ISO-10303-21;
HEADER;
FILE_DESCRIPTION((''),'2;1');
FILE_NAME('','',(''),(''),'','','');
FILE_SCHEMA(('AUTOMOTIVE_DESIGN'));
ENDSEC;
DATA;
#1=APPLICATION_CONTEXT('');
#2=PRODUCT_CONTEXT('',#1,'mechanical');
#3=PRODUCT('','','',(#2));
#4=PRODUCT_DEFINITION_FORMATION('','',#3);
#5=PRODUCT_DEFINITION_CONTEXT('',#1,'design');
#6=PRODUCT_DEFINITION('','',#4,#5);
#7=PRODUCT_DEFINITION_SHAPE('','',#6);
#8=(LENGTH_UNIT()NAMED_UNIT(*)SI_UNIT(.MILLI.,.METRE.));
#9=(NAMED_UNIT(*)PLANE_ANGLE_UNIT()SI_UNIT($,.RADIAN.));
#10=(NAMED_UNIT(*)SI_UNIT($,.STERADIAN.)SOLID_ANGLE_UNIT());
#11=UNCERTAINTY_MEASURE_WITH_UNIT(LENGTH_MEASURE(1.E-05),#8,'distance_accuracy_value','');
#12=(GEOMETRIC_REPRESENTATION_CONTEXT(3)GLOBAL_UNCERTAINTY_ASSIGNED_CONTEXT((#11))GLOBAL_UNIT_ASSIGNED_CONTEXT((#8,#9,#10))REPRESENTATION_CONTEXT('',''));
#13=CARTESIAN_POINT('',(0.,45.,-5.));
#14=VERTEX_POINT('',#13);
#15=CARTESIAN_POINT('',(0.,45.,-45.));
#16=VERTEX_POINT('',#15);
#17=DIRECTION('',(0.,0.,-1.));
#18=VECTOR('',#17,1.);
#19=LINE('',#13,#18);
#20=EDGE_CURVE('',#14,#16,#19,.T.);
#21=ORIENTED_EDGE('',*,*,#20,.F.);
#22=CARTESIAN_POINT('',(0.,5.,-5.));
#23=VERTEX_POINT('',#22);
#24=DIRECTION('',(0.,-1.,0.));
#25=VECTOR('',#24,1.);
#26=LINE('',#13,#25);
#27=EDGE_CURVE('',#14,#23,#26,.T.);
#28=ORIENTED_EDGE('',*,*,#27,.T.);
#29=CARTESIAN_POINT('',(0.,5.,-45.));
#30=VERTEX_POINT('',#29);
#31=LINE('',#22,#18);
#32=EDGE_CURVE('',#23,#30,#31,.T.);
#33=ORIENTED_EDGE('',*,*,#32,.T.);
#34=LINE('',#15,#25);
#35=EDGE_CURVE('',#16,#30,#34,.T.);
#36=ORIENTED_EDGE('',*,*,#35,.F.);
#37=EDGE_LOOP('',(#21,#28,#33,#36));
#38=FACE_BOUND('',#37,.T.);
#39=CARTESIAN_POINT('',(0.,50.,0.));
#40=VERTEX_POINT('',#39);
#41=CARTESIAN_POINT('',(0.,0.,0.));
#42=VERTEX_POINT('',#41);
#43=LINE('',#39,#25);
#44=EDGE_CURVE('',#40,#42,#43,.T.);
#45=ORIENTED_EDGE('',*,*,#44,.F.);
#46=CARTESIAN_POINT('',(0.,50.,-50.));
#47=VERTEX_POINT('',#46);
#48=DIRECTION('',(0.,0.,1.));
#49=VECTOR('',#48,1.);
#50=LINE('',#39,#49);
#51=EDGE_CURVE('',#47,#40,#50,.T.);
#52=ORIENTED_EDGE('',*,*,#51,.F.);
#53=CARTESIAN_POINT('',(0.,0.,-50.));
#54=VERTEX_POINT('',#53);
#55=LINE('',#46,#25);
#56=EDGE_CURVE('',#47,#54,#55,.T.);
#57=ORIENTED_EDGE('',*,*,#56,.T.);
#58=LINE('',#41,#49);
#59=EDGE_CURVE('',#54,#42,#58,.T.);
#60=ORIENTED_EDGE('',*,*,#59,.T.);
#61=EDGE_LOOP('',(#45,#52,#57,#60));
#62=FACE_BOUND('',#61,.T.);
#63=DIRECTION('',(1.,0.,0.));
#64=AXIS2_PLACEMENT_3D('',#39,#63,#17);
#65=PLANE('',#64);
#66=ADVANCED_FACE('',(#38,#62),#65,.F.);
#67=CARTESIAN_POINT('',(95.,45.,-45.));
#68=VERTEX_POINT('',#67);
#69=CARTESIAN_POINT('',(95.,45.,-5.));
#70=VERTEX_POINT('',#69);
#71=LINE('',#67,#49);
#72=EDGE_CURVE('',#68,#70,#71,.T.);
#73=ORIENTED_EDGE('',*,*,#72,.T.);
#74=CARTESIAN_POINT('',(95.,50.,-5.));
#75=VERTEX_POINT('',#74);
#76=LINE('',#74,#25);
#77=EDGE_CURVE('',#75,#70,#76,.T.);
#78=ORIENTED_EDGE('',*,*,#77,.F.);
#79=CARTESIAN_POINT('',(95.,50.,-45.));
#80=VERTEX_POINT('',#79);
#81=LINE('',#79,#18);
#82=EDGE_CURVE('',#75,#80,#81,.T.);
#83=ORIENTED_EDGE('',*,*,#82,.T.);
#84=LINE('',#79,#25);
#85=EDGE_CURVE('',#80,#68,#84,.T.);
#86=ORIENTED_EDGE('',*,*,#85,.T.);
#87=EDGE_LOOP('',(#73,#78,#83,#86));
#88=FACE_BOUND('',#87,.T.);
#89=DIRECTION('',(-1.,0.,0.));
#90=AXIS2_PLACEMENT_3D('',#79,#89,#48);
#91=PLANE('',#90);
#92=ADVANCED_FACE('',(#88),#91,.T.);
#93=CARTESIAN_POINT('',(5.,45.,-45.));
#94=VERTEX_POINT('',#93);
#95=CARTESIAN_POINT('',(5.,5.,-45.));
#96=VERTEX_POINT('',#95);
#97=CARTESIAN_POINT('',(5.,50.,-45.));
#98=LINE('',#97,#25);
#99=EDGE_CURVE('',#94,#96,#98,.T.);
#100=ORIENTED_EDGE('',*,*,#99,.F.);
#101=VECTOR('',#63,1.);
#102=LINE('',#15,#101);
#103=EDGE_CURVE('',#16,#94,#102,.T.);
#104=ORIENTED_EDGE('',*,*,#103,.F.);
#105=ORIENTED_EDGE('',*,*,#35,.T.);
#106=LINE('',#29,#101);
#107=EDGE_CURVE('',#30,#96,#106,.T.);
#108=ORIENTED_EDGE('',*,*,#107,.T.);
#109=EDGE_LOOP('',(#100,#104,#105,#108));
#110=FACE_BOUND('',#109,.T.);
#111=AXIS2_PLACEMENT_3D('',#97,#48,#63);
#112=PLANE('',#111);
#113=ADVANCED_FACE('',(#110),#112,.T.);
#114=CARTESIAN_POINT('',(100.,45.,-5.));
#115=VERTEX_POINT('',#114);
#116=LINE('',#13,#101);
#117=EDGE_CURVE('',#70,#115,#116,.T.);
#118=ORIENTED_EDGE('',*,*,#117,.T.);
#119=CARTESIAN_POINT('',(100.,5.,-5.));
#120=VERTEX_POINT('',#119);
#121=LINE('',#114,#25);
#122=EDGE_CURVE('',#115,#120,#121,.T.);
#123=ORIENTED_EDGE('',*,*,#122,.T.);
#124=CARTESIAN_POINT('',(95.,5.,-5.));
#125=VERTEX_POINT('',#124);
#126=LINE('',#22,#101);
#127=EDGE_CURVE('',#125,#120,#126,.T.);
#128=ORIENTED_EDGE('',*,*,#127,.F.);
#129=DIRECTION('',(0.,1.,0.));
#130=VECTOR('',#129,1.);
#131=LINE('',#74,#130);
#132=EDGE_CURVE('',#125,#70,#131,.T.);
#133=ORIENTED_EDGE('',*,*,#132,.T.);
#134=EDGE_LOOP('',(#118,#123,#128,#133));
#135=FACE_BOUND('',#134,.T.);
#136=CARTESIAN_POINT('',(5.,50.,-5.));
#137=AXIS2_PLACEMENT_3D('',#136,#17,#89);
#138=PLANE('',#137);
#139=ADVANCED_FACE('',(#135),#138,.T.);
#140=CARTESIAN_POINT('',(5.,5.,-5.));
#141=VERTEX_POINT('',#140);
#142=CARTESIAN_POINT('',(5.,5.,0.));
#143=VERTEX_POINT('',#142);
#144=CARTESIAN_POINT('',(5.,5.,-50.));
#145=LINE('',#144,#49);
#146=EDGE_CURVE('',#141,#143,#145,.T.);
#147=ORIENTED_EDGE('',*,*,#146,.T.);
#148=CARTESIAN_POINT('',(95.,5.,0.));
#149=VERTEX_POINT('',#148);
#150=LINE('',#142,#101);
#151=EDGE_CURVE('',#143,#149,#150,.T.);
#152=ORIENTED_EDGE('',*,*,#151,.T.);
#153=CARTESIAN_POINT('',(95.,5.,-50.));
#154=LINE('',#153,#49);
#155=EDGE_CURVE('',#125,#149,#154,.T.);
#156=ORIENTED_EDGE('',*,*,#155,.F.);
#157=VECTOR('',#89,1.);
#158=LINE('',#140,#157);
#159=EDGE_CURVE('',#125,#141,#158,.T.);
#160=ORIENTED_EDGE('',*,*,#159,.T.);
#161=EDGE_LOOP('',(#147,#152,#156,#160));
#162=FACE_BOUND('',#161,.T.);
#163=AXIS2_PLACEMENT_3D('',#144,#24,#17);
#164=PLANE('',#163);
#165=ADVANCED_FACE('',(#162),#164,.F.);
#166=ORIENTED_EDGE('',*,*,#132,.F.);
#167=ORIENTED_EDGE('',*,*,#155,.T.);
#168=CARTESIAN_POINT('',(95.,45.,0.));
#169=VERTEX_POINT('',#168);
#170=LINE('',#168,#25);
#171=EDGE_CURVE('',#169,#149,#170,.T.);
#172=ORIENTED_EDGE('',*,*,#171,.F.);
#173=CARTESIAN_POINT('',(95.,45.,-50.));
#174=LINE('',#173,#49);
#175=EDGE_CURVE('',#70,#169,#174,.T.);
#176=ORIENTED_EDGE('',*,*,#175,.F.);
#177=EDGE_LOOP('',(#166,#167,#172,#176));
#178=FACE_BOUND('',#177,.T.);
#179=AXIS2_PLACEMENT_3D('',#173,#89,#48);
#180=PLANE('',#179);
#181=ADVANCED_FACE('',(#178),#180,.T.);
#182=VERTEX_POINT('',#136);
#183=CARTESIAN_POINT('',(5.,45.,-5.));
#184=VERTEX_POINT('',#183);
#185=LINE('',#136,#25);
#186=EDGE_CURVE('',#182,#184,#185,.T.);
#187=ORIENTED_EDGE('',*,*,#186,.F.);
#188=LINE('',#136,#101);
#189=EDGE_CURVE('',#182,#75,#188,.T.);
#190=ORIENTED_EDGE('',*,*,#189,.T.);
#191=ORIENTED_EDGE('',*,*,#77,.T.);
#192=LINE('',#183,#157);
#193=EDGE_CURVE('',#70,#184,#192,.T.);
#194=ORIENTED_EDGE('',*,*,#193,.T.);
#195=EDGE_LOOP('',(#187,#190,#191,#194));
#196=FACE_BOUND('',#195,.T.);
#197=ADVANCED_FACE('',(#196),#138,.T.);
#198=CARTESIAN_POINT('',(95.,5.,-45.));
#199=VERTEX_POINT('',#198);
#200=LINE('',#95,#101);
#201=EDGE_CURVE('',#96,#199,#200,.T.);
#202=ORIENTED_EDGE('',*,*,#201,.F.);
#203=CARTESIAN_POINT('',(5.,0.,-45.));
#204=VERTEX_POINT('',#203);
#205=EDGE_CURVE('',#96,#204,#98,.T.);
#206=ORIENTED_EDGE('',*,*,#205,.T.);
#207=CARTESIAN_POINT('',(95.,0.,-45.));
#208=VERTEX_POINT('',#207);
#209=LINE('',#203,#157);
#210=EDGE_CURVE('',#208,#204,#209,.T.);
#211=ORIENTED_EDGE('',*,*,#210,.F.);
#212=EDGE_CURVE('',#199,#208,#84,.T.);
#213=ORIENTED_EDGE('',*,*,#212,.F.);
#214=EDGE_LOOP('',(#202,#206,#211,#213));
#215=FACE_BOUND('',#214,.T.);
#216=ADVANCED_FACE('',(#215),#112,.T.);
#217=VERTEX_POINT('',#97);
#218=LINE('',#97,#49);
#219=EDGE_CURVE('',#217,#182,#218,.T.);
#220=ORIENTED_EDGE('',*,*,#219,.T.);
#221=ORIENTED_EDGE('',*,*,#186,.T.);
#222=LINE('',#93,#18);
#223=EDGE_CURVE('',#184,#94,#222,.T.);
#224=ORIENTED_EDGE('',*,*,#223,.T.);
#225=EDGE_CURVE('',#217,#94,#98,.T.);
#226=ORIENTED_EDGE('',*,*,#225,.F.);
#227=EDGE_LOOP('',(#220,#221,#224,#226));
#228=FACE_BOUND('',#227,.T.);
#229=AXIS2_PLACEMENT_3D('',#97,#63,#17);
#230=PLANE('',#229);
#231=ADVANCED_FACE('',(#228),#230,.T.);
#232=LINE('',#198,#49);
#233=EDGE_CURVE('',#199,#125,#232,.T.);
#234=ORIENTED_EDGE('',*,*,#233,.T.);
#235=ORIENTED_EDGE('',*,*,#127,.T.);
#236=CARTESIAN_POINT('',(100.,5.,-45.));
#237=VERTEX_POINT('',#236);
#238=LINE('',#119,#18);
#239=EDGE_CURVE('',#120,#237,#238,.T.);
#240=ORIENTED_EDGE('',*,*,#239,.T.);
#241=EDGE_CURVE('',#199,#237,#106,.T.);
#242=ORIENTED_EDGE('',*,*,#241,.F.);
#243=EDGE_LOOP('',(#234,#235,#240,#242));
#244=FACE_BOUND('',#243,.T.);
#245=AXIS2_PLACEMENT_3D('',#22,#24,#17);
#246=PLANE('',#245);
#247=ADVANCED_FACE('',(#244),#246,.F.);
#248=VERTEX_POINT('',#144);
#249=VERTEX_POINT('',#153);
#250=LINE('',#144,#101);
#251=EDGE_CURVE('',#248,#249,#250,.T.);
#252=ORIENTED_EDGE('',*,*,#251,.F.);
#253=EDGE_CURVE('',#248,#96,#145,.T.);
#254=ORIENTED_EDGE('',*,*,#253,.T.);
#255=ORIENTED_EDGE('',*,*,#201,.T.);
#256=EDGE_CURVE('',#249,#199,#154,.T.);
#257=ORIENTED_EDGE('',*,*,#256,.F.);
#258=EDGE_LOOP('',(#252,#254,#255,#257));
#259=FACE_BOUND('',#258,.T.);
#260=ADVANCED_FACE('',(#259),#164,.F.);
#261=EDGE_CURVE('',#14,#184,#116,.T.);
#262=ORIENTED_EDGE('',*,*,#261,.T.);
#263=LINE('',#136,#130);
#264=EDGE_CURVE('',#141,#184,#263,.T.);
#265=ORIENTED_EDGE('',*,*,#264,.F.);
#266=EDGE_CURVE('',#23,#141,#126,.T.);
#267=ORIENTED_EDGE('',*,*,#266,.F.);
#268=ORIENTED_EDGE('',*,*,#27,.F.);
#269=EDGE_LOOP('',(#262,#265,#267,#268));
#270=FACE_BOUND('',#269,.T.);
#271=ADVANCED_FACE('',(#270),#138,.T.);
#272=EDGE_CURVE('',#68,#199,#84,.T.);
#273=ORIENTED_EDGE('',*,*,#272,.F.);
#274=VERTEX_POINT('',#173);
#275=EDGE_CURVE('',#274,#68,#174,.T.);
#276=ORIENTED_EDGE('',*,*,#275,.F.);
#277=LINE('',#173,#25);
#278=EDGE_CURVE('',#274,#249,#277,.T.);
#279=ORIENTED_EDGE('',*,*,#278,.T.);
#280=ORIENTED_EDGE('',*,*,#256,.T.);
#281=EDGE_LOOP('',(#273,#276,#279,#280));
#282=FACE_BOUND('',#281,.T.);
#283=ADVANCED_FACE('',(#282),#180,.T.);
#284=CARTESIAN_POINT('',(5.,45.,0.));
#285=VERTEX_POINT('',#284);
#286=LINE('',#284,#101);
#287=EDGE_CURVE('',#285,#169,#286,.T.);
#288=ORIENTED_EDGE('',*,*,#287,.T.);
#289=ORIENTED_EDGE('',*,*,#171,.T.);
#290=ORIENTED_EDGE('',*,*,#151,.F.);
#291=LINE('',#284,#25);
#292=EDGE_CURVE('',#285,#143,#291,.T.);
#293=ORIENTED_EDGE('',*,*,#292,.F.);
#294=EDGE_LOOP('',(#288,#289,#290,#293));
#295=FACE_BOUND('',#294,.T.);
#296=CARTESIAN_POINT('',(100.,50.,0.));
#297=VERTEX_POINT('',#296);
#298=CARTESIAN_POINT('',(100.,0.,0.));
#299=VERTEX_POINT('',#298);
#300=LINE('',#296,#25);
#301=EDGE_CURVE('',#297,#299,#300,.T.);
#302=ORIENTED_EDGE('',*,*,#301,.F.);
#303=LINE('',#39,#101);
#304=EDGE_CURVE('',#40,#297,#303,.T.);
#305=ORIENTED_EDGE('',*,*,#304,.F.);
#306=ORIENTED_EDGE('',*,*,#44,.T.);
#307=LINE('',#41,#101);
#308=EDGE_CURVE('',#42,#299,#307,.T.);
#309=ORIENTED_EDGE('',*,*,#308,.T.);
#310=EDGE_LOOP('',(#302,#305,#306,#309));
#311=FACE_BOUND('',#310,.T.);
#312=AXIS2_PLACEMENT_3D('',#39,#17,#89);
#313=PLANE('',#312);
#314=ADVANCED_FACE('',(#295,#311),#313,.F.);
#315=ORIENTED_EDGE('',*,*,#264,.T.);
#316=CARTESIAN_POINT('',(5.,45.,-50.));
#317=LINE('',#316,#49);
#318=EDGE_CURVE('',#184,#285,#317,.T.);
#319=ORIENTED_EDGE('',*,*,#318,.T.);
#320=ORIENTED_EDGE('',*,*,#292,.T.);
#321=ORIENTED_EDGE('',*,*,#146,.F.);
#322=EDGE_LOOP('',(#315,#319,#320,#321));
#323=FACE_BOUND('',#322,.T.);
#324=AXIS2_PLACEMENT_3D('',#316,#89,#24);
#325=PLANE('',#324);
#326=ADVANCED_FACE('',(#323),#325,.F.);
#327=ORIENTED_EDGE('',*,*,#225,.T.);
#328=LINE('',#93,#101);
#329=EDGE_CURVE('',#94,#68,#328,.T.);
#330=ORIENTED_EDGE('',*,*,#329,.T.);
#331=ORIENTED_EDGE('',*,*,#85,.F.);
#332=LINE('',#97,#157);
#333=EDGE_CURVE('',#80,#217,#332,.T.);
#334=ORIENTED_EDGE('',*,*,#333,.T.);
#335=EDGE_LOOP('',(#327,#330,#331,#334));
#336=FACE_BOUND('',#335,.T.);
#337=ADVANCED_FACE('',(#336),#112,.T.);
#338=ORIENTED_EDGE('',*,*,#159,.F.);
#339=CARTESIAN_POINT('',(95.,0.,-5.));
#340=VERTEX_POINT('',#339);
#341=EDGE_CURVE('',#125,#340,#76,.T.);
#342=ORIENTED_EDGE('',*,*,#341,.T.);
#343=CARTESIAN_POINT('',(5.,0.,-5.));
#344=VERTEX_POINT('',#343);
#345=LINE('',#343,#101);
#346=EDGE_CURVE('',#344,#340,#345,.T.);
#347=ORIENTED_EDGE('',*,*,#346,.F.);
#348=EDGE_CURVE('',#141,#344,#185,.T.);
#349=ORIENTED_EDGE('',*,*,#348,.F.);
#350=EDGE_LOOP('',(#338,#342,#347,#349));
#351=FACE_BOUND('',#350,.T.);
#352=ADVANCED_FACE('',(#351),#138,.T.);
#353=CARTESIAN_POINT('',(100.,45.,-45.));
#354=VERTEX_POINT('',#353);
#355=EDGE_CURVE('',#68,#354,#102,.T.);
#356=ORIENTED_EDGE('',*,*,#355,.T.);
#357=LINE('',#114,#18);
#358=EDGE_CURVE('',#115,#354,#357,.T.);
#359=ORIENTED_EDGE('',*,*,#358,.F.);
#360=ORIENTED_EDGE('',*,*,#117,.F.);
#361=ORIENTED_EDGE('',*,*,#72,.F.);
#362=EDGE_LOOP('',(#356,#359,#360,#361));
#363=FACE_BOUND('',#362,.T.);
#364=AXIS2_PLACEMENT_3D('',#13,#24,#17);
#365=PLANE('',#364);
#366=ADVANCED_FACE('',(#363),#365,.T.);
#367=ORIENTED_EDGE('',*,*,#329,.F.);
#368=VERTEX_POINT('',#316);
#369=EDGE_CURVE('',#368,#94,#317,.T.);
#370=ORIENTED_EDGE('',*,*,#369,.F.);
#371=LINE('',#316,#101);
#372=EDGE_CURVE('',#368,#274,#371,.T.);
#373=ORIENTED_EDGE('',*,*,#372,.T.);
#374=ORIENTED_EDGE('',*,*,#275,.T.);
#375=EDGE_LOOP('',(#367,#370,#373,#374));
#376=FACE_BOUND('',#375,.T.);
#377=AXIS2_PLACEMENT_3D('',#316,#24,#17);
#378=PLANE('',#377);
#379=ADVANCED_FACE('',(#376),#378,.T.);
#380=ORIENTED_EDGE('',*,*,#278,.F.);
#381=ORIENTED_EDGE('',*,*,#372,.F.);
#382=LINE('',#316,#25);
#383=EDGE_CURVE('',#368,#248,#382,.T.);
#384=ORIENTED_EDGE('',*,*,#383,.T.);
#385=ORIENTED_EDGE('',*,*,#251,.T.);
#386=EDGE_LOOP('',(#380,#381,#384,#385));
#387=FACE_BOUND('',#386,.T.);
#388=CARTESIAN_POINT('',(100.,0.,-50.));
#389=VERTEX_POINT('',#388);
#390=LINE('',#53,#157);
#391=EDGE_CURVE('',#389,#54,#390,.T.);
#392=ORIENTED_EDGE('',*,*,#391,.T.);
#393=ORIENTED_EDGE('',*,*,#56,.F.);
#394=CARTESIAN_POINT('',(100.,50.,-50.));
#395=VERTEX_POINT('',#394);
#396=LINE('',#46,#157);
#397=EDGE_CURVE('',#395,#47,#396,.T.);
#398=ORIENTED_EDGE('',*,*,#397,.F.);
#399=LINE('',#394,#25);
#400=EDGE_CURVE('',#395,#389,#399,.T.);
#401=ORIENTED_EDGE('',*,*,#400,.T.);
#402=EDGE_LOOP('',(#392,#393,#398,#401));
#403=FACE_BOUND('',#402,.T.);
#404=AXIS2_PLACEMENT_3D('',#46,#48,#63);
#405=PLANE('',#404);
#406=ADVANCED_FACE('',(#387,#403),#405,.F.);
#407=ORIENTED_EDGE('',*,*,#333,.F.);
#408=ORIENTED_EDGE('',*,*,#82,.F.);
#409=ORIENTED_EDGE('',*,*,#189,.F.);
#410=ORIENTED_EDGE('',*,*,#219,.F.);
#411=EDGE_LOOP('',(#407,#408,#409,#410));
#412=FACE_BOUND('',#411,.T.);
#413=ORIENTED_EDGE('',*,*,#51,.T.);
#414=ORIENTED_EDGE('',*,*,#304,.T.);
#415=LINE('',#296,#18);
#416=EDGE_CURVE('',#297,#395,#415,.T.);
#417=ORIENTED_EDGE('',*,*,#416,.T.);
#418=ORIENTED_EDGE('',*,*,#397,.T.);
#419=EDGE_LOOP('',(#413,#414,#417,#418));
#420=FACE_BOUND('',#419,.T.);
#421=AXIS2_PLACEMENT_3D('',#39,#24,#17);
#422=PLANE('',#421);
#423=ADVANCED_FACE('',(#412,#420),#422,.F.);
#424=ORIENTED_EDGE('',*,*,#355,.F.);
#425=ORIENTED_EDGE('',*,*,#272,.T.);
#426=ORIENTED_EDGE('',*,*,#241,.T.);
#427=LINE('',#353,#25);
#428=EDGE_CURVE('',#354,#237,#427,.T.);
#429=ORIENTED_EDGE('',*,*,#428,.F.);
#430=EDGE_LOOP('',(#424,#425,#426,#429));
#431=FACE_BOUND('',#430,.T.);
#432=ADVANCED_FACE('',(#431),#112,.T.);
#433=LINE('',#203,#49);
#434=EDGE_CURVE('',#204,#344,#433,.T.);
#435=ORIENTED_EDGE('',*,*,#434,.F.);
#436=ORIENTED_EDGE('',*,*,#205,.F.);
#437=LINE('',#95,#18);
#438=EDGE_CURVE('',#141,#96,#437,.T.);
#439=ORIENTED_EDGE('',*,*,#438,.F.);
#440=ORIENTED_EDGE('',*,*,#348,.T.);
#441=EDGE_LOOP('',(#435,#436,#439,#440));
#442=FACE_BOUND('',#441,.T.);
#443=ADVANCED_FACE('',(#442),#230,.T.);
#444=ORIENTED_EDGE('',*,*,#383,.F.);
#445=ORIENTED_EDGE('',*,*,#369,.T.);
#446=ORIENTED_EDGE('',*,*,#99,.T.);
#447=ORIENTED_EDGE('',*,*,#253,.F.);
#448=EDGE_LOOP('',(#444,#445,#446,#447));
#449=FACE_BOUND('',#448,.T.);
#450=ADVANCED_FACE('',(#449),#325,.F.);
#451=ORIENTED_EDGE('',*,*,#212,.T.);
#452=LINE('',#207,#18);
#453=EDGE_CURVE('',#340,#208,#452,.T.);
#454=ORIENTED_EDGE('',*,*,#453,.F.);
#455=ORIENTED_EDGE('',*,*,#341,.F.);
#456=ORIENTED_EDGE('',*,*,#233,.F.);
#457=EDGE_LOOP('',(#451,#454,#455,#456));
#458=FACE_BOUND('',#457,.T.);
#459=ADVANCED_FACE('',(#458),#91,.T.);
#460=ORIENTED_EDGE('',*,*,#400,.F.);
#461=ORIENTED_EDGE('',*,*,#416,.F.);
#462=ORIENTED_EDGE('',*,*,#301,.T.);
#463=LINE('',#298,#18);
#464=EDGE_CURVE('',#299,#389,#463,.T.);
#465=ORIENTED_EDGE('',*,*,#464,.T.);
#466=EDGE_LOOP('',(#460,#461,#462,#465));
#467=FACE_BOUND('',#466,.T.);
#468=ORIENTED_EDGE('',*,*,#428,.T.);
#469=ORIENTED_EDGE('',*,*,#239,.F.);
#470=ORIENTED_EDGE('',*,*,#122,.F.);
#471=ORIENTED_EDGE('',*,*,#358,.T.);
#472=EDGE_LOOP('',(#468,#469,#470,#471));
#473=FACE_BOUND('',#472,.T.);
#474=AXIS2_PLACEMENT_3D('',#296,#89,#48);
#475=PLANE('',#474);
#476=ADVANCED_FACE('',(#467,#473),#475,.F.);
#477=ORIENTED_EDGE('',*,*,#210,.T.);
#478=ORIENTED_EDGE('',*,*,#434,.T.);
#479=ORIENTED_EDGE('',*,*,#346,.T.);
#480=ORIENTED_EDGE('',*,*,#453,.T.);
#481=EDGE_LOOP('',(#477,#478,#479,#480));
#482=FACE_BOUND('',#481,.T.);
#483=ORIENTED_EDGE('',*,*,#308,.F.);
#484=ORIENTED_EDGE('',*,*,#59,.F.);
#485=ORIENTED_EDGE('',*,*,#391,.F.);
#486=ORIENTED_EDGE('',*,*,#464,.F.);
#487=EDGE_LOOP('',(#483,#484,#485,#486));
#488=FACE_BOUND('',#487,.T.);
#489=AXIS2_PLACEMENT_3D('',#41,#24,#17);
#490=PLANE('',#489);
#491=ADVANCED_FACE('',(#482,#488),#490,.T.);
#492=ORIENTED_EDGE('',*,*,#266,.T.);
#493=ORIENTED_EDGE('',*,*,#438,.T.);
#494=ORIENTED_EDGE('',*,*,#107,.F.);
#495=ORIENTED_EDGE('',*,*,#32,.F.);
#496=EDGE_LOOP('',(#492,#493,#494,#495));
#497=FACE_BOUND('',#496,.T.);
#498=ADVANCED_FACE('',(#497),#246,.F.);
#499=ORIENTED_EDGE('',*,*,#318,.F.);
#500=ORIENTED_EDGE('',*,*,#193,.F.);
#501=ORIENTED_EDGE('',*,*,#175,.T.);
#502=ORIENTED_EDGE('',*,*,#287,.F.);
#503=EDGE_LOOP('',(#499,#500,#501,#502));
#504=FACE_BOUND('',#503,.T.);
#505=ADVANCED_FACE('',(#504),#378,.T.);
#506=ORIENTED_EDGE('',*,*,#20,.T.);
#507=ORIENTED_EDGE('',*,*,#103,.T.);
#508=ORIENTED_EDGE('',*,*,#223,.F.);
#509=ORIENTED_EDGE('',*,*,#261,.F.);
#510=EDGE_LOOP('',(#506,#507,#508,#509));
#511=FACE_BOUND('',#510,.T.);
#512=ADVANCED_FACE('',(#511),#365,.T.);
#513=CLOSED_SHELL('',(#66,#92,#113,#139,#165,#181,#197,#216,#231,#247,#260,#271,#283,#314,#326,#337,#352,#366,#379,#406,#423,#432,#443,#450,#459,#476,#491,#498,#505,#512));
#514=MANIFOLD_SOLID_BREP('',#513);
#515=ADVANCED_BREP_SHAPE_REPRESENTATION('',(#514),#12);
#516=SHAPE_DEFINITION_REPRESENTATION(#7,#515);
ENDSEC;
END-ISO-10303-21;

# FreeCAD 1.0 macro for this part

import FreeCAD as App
import Part
import Sketcher
Q = App.Units.Quantity


def add_polygon(sketch, points):
    """Adds a closed chain of lines whose ends are joined by coincident constraints."""
    first, n = sketch.GeometryCount, len(points)
    for a, b in zip(points, points[1:] + points[:1]):
        sketch.addGeometry(Part.LineSegment(App.Vector(*a, 0), App.Vector(*b, 0)), False)
    for i in range(n):
        sketch.addConstraint(Sketcher.Constraint("Coincident", first + i, 2, first + (i + 1) % n, 1))

doc = App.newDocument("Part")
body = doc.addObject("PartDesign::Body", "Body")

# Sketch on XZ plane
sketch1 = body.newObject("Sketcher::SketchObject", "Sketch")
sketch1.AttachmentSupport = (doc.getObject("XZ_Plane"), [""])
sketch1.MapMode = "FlatFace"
add_polygon(sketch1, [(0, -50), (0, 0), (100, 0), (100, -50)])  # lines 0-3
add_polygon(sketch1, [(95, -5), (5, -5), (5, -45), (95, -45)])  # lines 4-7
sketch1.addConstraint([
    Sketcher.Constraint("Vertical", 0),
    Sketcher.Constraint("Horizontal", 1),
    Sketcher.Constraint("Vertical", 2),
    Sketcher.Constraint("Horizontal", 3),
    Sketcher.Constraint("Horizontal", 4),
    Sketcher.Constraint("Vertical", 5),
    Sketcher.Constraint("Horizontal", 6),
    Sketcher.Constraint("Vertical", 7),
    Sketcher.Constraint("Coincident", 0, 2, -1, 1),
    Sketcher.Constraint("DistanceX", 1, 1, 1, 2, Q("100 mm")),
    Sketcher.Constraint("DistanceX", 4, 2, 4, 1, Q("90 mm")),
    Sketcher.Constraint("DistanceY", 0, 1, 0, 2, Q("50 mm")),
    Sketcher.Constraint("DistanceY", 5, 2, 5, 1, Q("40 mm")),
    Sketcher.Constraint("DistanceX", -1, 1, 4, 2, Q("5 mm")),
    Sketcher.Constraint("DistanceY", 4, 2, -1, 1, Q("5 mm")),
])
pad1 = body.newObject("PartDesign::Pad", "Pad")
pad1.Profile = sketch1
pad1.Length = 50
pad1.Reversed = True

# Sketch on YZ plane
sketch2 = body.newObject("Sketcher::SketchObject", "Sketch001")
sketch2.AttachmentSupport = (doc.getObject("YZ_Plane"), [""])
sketch2.MapMode = "FlatFace"
sketch2.AttachmentOffset = App.Placement(App.Vector(0, 0, 100), App.Rotation())
add_polygon(sketch2, [(45, -5), (5, -5), (5, -45), (45, -45)])  # lines 0-3
sketch2.addConstraint([
    Sketcher.Constraint("Horizontal", 0),
    Sketcher.Constraint("Vertical", 1),
    Sketcher.Constraint("Horizontal", 2),
    Sketcher.Constraint("Vertical", 3),
    Sketcher.Constraint("Equal", 2, 1),
    Sketcher.Constraint("DistanceX", 0, 2, 0, 1, Q("40 mm")),
    Sketcher.Constraint("DistanceX", -1, 1, 0, 2, Q("5 mm")),
    Sketcher.Constraint("DistanceY", 0, 2, -1, 1, Q("5 mm")),
])
pocket1 = body.newObject("PartDesign::Pocket", "Pocket")
pocket1.Profile = sketch2
pocket1.Type = "ThroughAll"

# Sketch on XY plane
sketch3 = body.newObject("Sketcher::SketchObject", "Sketch002")
sketch3.AttachmentSupport = (doc.getObject("XY_Plane"), [""])
sketch3.MapMode = "FlatFace"
add_polygon(sketch3, [(5, 45), (5, 5), (95, 5), (95, 45)])  # lines 0-3
sketch3.addConstraint([
    Sketcher.Constraint("Vertical", 0),
    Sketcher.Constraint("Horizontal", 1),
    Sketcher.Constraint("Vertical", 2),
    Sketcher.Constraint("Horizontal", 3),
    Sketcher.Constraint("DistanceX", 1, 1, 1, 2, Q("90 mm")),
    Sketcher.Constraint("DistanceY", 0, 2, 0, 1, Q("40 mm")),
    Sketcher.Constraint("DistanceX", -1, 1, 0, 2, Q("5 mm")),
    Sketcher.Constraint("DistanceY", -1, 1, 0, 2, Q("5 mm")),
])
pocket2 = body.newObject("PartDesign::Pocket", "Pocket001")
pocket2.Profile = sketch3
pocket2.Type = "ThroughAll"

doc.recompute()
